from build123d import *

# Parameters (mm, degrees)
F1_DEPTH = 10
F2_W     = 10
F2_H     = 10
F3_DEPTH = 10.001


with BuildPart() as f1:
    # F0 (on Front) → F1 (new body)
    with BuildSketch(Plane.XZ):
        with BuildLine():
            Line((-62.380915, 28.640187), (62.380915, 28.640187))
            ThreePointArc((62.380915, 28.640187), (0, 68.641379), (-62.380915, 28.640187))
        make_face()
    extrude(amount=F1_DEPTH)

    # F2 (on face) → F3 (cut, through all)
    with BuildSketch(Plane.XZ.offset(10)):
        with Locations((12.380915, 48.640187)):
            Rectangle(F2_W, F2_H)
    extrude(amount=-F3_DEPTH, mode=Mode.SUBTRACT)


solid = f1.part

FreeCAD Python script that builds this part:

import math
import FreeCAD as App
import Part
import Sketcher

V = App.Vector
Q = App.Units.Quantity

doc = App.newDocument("Part")
body = doc.addObject("PartDesign::Body", "Body")

sketch1 = body.newObject("Sketcher::SketchObject", "Sketch")
sketch1.AttachmentSupport = (doc.getObject("XZ_Plane"), [""])
sketch1.MapMode = "FlatFace"
sketch1.addGeometry([
    Part.LineSegment(V(-62, 29, 0), V(62, 29, 0)),
    Part.ArcOfCircle(Part.Circle(V(0, 0, 0), V(0, 0, 1), 69), math.radians(25), math.radians(155)),
], False)
sketch1.addConstraint([
    Sketcher.Constraint("Coincident", 0, 1, 1, 2),
    Sketcher.Constraint("Coincident", 1, 1, 0, 2),
    Sketcher.Constraint("Horizontal", 0),
    Sketcher.Constraint("Coincident", 1, 3, -1, 1),
    Sketcher.Constraint("Radius", 1, Q("68.641378 mm")),
    Sketcher.Constraint("DistanceX", 0, 1, 0, 2, Q("124.76183 mm")),
])
pad1 = body.newObject("PartDesign::Pad", "Pad")
pad1.Profile = sketch1
pad1.Length = 10

sketch2 = body.newObject("Sketcher::SketchObject", "Sketch001")
sketch2.AttachmentSupport = (doc.getObject("XZ_Plane"), [""])
sketch2.MapMode = "FlatFace"
sketch2.AttachmentOffset = App.Placement(V(0, 0, 10), App.Rotation())
sketch2.addGeometry([
    Part.LineSegment(V(7, 54, 0), V(7, 44, 0)),
    Part.LineSegment(V(7, 44, 0), V(17, 44, 0)),
    Part.LineSegment(V(17, 44, 0), V(17, 54, 0)),
    Part.LineSegment(V(17, 54, 0), V(7, 54, 0)),
], False)
sketch2.addConstraint([
    Sketcher.Constraint("Coincident", 0, 2, 1, 1),
    Sketcher.Constraint("Coincident", 1, 2, 2, 1),
    Sketcher.Constraint("Coincident", 2, 2, 3, 1),
    Sketcher.Constraint("Coincident", 3, 2, 0, 1),
    Sketcher.Constraint("Vertical", 0),
    Sketcher.Constraint("Horizontal", 1),
    Sketcher.Constraint("Vertical", 2),
    Sketcher.Constraint("Horizontal", 3),
    Sketcher.Constraint("Equal", 3, 0),
    Sketcher.Constraint("DistanceX", 1, 1, 1, 2, Q("10 mm")),
    Sketcher.Constraint("DistanceX", -1, 1, 0, 2, Q("7.380915 mm")),
    Sketcher.Constraint("DistanceY", -1, 1, 0, 2, Q("43.640187 mm")),
])
pocket1 = body.newObject("PartDesign::Pocket", "Pocket")
pocket1.Profile = sketch2
pocket1.Type = "ThroughAll"

doc.recompute()
